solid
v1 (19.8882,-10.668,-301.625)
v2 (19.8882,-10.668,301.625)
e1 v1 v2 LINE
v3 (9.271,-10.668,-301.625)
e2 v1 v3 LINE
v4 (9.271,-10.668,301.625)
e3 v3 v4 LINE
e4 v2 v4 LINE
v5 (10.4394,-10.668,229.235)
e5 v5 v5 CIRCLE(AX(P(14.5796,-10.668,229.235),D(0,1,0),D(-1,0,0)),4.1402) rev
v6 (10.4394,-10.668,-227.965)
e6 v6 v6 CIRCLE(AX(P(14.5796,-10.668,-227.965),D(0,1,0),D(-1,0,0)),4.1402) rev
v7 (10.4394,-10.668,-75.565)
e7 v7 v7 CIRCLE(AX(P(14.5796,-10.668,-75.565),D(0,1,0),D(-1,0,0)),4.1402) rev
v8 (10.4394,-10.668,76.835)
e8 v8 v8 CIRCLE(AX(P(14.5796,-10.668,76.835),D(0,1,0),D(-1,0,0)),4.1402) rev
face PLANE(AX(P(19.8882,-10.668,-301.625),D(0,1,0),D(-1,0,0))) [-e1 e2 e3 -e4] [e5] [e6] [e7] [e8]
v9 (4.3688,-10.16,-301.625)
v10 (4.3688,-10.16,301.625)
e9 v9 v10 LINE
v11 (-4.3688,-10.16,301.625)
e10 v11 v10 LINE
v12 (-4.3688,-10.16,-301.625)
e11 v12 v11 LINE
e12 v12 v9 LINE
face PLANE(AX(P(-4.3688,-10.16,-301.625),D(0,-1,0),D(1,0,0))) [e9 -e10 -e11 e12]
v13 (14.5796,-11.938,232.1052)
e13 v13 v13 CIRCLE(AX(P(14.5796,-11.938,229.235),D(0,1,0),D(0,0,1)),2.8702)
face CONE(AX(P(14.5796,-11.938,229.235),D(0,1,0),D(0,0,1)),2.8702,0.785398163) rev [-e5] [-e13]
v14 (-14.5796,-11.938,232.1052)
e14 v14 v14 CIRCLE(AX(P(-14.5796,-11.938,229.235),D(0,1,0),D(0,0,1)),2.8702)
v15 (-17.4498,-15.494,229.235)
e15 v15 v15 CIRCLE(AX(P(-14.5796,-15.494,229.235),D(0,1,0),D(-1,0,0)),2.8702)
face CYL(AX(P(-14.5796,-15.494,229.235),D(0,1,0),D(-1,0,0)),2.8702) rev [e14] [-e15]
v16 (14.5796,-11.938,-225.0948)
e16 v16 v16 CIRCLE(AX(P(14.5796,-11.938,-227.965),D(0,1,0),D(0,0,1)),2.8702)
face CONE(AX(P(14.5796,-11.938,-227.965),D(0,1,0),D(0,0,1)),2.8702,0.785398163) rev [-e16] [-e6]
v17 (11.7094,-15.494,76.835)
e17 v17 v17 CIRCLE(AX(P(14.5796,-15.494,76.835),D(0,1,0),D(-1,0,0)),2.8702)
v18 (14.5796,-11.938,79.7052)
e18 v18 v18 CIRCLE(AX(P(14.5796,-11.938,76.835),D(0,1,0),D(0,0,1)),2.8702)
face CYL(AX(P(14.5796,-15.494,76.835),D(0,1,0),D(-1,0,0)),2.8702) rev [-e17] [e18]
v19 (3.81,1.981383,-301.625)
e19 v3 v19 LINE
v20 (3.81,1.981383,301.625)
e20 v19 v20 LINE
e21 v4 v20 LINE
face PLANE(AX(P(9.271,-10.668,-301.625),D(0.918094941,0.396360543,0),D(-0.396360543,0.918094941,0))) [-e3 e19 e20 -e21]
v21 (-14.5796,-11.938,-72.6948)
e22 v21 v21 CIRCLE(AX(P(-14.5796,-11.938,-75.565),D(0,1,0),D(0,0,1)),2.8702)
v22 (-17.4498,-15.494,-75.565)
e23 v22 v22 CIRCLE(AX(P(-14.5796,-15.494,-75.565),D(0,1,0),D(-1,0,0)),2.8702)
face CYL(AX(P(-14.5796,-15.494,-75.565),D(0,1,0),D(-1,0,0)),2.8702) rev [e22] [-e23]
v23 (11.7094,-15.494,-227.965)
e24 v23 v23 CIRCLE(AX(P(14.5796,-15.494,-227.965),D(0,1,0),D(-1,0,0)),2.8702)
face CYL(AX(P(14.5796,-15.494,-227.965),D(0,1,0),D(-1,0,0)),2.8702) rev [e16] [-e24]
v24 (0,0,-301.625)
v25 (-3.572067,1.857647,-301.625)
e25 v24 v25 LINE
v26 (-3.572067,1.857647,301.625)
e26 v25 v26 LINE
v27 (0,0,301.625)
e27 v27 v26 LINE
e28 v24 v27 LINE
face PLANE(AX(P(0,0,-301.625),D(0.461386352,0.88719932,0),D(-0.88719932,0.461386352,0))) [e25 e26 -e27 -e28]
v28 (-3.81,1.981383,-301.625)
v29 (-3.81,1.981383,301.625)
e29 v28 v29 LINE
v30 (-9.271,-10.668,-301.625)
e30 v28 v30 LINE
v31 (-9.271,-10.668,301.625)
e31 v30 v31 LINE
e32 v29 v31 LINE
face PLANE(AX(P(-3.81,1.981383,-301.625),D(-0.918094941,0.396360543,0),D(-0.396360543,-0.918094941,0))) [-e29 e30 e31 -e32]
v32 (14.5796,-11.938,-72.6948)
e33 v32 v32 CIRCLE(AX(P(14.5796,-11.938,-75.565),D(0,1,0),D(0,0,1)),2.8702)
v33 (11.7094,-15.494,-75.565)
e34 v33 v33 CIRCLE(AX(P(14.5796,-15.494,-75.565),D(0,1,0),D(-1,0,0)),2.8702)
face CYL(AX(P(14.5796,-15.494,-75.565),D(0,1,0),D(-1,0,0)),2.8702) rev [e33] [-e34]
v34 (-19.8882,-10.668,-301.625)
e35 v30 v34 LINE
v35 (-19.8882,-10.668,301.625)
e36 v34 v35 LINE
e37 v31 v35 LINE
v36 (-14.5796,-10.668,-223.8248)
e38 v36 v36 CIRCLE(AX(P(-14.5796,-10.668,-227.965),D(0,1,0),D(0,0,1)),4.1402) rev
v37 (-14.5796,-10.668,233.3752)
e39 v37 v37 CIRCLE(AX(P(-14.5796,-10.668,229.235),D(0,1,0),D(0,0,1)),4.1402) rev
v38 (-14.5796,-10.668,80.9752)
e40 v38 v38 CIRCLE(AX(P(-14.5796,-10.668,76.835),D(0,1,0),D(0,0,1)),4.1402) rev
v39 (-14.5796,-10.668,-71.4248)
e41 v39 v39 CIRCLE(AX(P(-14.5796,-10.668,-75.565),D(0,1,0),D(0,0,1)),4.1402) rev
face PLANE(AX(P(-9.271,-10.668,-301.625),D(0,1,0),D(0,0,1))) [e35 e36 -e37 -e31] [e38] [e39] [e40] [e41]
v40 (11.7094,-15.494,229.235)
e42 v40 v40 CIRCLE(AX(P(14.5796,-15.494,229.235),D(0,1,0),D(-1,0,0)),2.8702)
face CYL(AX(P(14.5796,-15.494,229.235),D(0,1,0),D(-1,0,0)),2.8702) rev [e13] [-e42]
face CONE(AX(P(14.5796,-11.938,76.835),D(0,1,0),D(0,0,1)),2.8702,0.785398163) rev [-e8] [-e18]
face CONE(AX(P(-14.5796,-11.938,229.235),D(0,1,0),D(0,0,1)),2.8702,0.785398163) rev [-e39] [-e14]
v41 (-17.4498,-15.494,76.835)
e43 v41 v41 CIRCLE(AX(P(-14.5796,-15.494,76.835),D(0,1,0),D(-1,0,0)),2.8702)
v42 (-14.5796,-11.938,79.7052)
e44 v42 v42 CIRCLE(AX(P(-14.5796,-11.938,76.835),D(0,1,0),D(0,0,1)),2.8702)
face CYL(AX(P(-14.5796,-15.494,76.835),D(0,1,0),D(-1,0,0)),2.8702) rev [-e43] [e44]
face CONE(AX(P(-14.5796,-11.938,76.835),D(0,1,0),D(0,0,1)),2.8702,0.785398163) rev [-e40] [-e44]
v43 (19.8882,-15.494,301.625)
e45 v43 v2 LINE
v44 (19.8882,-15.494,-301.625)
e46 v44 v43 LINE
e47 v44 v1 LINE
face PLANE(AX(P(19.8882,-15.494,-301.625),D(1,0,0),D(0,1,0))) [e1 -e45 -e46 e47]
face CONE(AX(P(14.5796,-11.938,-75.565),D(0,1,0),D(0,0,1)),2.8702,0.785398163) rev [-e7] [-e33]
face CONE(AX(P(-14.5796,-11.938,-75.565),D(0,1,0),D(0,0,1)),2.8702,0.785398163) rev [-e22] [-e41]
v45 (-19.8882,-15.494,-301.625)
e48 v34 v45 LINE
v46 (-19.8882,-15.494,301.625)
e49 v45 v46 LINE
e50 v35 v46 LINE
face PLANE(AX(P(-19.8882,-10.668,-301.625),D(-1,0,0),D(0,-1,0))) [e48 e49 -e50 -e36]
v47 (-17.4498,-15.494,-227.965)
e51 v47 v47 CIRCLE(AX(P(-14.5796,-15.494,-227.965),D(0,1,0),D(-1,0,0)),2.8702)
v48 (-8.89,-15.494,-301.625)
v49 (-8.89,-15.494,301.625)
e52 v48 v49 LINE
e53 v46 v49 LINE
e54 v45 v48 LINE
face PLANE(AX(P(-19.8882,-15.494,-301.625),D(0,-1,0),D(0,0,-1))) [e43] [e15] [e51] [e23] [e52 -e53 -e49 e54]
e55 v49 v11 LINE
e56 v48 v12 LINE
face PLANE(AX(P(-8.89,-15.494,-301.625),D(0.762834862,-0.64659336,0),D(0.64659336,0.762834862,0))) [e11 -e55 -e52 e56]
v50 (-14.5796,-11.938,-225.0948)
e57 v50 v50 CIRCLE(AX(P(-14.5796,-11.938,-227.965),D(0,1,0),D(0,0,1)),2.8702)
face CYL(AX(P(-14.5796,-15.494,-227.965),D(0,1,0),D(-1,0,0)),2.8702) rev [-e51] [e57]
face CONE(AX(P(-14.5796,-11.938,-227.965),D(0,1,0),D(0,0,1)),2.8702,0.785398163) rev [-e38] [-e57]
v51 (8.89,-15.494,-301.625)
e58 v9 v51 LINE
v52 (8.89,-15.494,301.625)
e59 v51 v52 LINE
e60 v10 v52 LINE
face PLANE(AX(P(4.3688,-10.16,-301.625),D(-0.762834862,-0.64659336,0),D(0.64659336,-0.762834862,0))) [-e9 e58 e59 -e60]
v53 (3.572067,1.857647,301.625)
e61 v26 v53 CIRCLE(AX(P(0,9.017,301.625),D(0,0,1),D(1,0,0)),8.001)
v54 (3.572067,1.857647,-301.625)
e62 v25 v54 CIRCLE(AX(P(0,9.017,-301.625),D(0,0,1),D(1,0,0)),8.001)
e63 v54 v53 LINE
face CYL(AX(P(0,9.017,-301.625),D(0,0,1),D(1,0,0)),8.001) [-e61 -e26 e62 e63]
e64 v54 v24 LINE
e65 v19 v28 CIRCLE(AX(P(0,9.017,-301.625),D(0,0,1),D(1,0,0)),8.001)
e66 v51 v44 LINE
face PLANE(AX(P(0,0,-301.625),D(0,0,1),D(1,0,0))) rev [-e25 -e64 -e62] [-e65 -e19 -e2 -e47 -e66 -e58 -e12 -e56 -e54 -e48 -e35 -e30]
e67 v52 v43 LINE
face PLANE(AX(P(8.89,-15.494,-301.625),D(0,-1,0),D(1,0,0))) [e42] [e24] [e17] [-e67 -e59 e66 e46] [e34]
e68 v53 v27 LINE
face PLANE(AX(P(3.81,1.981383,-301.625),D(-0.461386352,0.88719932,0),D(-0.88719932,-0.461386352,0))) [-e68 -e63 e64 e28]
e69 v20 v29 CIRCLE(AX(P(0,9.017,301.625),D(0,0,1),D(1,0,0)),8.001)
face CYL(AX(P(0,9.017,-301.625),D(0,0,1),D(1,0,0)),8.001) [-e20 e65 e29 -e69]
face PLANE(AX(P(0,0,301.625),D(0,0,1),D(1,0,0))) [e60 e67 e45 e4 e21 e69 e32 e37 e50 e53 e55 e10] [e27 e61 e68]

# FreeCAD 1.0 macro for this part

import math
import FreeCAD as App
import Part
import Sketcher

V = App.Vector
Q = App.Units.Quantity


def edges_at(feature, points):
    """Names of the edges that pass closest to the given points."""
    edges = feature.Shape.Edges
    near = lambda p: min(range(len(edges)), key=lambda i: edges[i].distToShape(Part.Vertex(*p))[0])
    return sorted({f"Edge{near(p) + 1}" for p in points})

doc = App.newDocument("Part")
body = doc.addObject("PartDesign::Body", "Body")

sketch1 = body.newObject("Sketcher::SketchObject", "Sketch")
sketch1.AttachmentSupport = (doc.getObject("XY_Plane"), [""])
sketch1.MapMode = "FlatFace"
sketch1.addGeometry(Part.ArcOfCircle(Part.Circle(V(0, 9.017, 0), V(0, 0, 1), 8.001), math.radians(-61.56311), math.radians(241.56311)), False)
sketch1.addGeometry(Part.LineSegment(V(-3.81, 1.981383, 0), V(-9.271, -10.668, 0)), False)
sketch1.addGeometry(Part.LineSegment(V(-9.271, -10.668, 0), V(-19.8882, -10.668, 0)), False)
sketch1.addGeometry(Part.LineSegment(V(-19.8882, -10.668, 0), V(-19.8882, -15.494, 0)), False)
sketch1.addGeometry(Part.LineSegment(V(-19.8882, -15.494, 0), V(-8.89, -15.494, 0)), False)
sketch1.addGeometry(Part.LineSegment(V(-8.89, -15.494, 0), V(-4.3688, -10.16, 0)), False)
sketch1.addGeometry(Part.LineSegment(V(-4.3688, -10.16, 0), V(4.3688, -10.16, 0)), False)
sketch1.addGeometry(Part.LineSegment(V(4.3688, -10.16, 0), V(8.89, -15.494, 0)), False)
sketch1.addGeometry(Part.LineSegment(V(8.89, -15.494, 0), V(19.8882, -15.494, 0)), False)
sketch1.addGeometry(Part.LineSegment(V(19.8882, -15.494, 0), V(19.8882, -10.668, 0)), False)
sketch1.addGeometry(Part.LineSegment(V(19.8882, -10.668, 0), V(9.271, -10.668, 0)), False)
sketch1.addGeometry(Part.LineSegment(V(9.271, -10.668, 0), V(3.81, 1.981383, 0)), False)
sketch1.addGeometry(Part.ArcOfCircle(Part.Circle(V(0, 9.017, 0), V(0, 0, 1), 8.001), math.radians(-116.516315), math.radians(-63.483685)), False)
sketch1.addGeometry(Part.LineSegment(V(3.572067, 1.857647, 0), V(0, 0, 0)), False)
sketch1.addGeometry(Part.LineSegment(V(0, 0, 0), V(-3.572067, 1.857647, 0)), False)
sketch1.addConstraint(Sketcher.Constraint("Coincident", 0, 2, 1, 1))
sketch1.addConstraint(Sketcher.Constraint("Coincident", 1, 2, 2, 1))
sketch1.addConstraint(Sketcher.Constraint("Coincident", 2, 2, 3, 1))
sketch1.addConstraint(Sketcher.Constraint("Coincident", 3, 2, 4, 1))
sketch1.addConstraint(Sketcher.Constraint("Coincident", 4, 2, 5, 1))
sketch1.addConstraint(Sketcher.Constraint("Coincident", 5, 2, 6, 1))
sketch1.addConstraint(Sketcher.Constraint("Coincident", 6, 2, 7, 1))
sketch1.addConstraint(Sketcher.Constraint("Coincident", 7, 2, 8, 1))
sketch1.addConstraint(Sketcher.Constraint("Coincident", 8, 2, 9, 1))
sketch1.addConstraint(Sketcher.Constraint("Coincident", 9, 2, 10, 1))
sketch1.addConstraint(Sketcher.Constraint("Coincident", 10, 2, 11, 1))
sketch1.addConstraint(Sketcher.Constraint("Coincident", 11, 2, 0, 1))
sketch1.addConstraint(Sketcher.Constraint("Coincident", 12, 2, 13, 1))
sketch1.addConstraint(Sketcher.Constraint("Coincident", 13, 2, 14, 1))
sketch1.addConstraint(Sketcher.Constraint("Coincident", 14, 2, 12, 1))
sketch1.addConstraint(Sketcher.Constraint("Horizontal", 2))
sketch1.addConstraint(Sketcher.Constraint("Vertical", 3))
sketch1.addConstraint(Sketcher.Constraint("Horizontal", 4))
sketch1.addConstraint(Sketcher.Constraint("Horizontal", 6))
sketch1.addConstraint(Sketcher.Constraint("Horizontal", 8))
sketch1.addConstraint(Sketcher.Constraint("Vertical", 9))
sketch1.addConstraint(Sketcher.Constraint("Horizontal", 10))
sketch1.addConstraint(Sketcher.Constraint("Coincident", 13, 2, -1, 1))
sketch1.addConstraint(Sketcher.Constraint("Coincident", 12, 3, 0, 3))
sketch1.addConstraint(Sketcher.Constraint("Equal", 0, 12))
sketch1.addConstraint(Sketcher.Constraint("Symmetric", 4, 2, 7, 2, -2))
sketch1.addConstraint(Sketcher.Constraint("Symmetric", 2, 2, 9, 2, -2))
sketch1.addConstraint(Sketcher.Constraint("Symmetric", 0, 2, 11, 2, -2))
sketch1.addConstraint(Sketcher.Constraint("Horizontal", 12, 2, 14, 2))
sketch1.addConstraint(Sketcher.Constraint("Equal", 2, 10))
sketch1.addConstraint(Sketcher.Constraint("Equal", 5, 7))
sketch1.addConstraint(Sketcher.Constraint("Radius", 0, Q("0.315 in")))
sketch1.addConstraint(Sketcher.Constraint("DistanceY", 3, 2, 3, 1, Q("0.19 in")))
sketch1.addConstraint(Sketcher.Constraint("DistanceY", 5, 2, -1, 1, Q("0.4 in")))
sketch1.addConstraint(Sketcher.Constraint("DistanceX", 4, 2, 0, 2, Q("0.2 in")))
sketch1.addConstraint(Sketcher.Constraint("DistanceX", 4, 2, 7, 2, Q("0.7 in")))
sketch1.addConstraint(Sketcher.Constraint("DistanceX", 2, 2, 2, 1, Q("0.418 in")))
sketch1.addConstraint(Sketcher.Constraint("DistanceX", 4, 1, 4, 2, Q("0.433 in")))
sketch1.addConstraint(Sketcher.Constraint("DistanceX", 6, 1, 6, 2, Q("0.344 in")))
sketch1.addConstraint(Sketcher.Constraint("DistanceY", 1, 2, -1, 1, Q("0.42 in")))
sketch1.addConstraint(Sketcher.Constraint("DistanceY", -1, 1, 0, 3, Q("0.355 in")))
sketch1.addConstraint(Sketcher.Constraint("Distance", 13, 4.026229))
pad1 = body.newObject("PartDesign::Pad", "Pad")
pad1.Profile = sketch1
pad1.Length = Q("23.75 in")
pad1.Midplane = True

sketch2 = body.newObject("Sketcher::SketchObject", "Sketch001")
sketch2.AttachmentSupport = (doc.getObject("XZ_Plane"), [""])
sketch2.MapMode = "FlatFace"
sketch2.AttachmentOffset = App.Placement(V(0, 0, 0.42 * 25.4), App.Rotation())
sketch2.addGeometry(Part.Circle(V(14.5796, 229.235, 0), V(0, 0, 1), 2.8702), False)
sketch2.addGeometry(Part.Circle(V(-14.5796, 229.235, 0), V(0, 0, 1), 2.8702), False)
sketch2.addGeometry(Part.Circle(V(-14.5796, 76.835, 0), V(0, 0, 1), 2.8702), False)
sketch2.addGeometry(Part.Circle(V(14.5796, 76.835, 0), V(0, 0, 1), 2.8702), False)
sketch2.addGeometry(Part.Circle(V(-14.5796, -75.565, 0), V(0, 0, 1), 2.8702), False)
sketch2.addGeometry(Part.Circle(V(14.5796, -75.565, 0), V(0, 0, 1), 2.8702), False)
sketch2.addGeometry(Part.Circle(V(-14.5796, -227.965, 0), V(0, 0, 1), 2.8702), False)
sketch2.addGeometry(Part.Circle(V(14.5796, -227.965, 0), V(0, 0, 1), 2.8702), False)
sketch2.addConstraint(Sketcher.Constraint("Equal", 0, 1))
sketch2.addConstraint(Sketcher.Constraint("Equal", 1, 2))
sketch2.addConstraint(Sketcher.Constraint("Equal", 2, 3))
sketch2.addConstraint(Sketcher.Constraint("Equal", 3, 4))
sketch2.addConstraint(Sketcher.Constraint("Equal", 4, 5))
sketch2.addConstraint(Sketcher.Constraint("Equal", 5, 6))
sketch2.addConstraint(Sketcher.Constraint("Equal", 6, 7))
sketch2.addConstraint(Sketcher.Constraint("Symmetric", 0, 3, 1, 3, -2))
sketch2.addConstraint(Sketcher.Constraint("Symmetric", 2, 3, 3, 3, -2))
sketch2.addConstraint(Sketcher.Constraint("Symmetric", 4, 3, 5, 3, -2))
sketch2.addConstraint(Sketcher.Constraint("Symmetric", 6, 3, 7, 3, -2))
sketch2.addConstraint(Sketcher.Constraint("Vertical", 1, 3, 2, 3))
sketch2.addConstraint(Sketcher.Constraint("Vertical", 2, 3, 4, 3))
sketch2.addConstraint(Sketcher.Constraint("Vertical", 4, 3, 6, 3))
sketch2.addConstraint(Sketcher.Constraint("Diameter", 0, Q("0.226 in")))
sketch2.addConstraint(Sketcher.Constraint("DistanceY", 2, 3, 1, 3, Q("6 in")))
sketch2.addConstraint(Sketcher.Constraint("DistanceY", 4, 3, 2, 3, Q("6 in")))
sketch2.addConstraint(Sketcher.Constraint("DistanceY", 6, 3, 4, 3, Q("6 in")))
sketch2.addConstraint(Sketcher.Constraint("DistanceX", -1, 1, 0, 3, Q("0.574 in")))
sketch2.addConstraint(Sketcher.Constraint("DistanceY", -1, 1, 0, 3, Q("9.025 in")))
pocket1 = body.newObject("PartDesign::Pocket", "Pocket")
pocket1.Profile = sketch2
pocket1.Type = "ThroughAll"
pocket1.Reversed = True
doc.recompute()

chamfer = body.newObject("PartDesign::Chamfer", "Chamfer")
chamfer.Base = (pocket1, edges_at(pocket1, [
    (11.709, -10.668, -75.565),
    (-17.45, -10.668, 76.835),
    (11.709, -10.668, 76.835),
    (-17.45, -10.668, 229.235),
    (-17.45, -10.668, -227.965),
    (11.709, -10.668, -227.965),
    (-17.45, -10.668, -75.565),
    (11.709, -10.668, 229.235),
]))
chamfer.Size = Q("0.05 in")

doc.recompute()
